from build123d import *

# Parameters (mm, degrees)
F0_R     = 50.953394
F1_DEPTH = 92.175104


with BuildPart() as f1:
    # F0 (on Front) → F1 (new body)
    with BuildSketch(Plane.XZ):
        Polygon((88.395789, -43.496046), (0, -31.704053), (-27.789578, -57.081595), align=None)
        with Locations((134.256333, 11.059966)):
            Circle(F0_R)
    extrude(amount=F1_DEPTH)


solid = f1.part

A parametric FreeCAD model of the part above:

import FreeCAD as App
import Part
import Sketcher
from FreeCAD import Vector

doc = App.newDocument("Part")
body = doc.addObject("PartDesign::Body", "Body")
body.AllowCompound = True

# Sketch on XZ plane
sketch1 = body.newObject("Sketcher::SketchObject", "Sketch")
sketch1.AttachmentSupport = (doc.getObject("XZ_Plane"), [""])
sketch1.MapMode = "FlatFace"
sketch1.addGeometry(Part.LineSegment(Vector(88.395789, -43.496046, 0), Vector(0, -31.704053, 0)), False)
sketch1.addGeometry(Part.LineSegment(Vector(0, -31.704053, 0), Vector(-27.789578, -57.081595, 0)), False)
sketch1.addGeometry(Part.LineSegment(Vector(-27.789578, -57.081595, 0), Vector(88.395789, -43.496046, 0)), False)
sketch1.addGeometry(Part.Circle(Vector(134.256333, 11.059966, 0), Vector(0, 0, 1), 50.953394), False)
sketch1.addConstraint(Sketcher.Constraint("Coincident", 0, 2, 1, 1))
sketch1.addConstraint(Sketcher.Constraint("Coincident", 1, 2, 2, 1))
sketch1.addConstraint(Sketcher.Constraint("Coincident", 2, 2, 0, 1))
sketch1.addConstraint(Sketcher.Constraint("PointOnObject", 0, 2, -2))
sketch1.addConstraint(Sketcher.Constraint("Diameter", 3, 101.906788))
sketch1.addConstraint(Sketcher.Constraint("Distance", 1, 37.633499))
sketch1.addConstraint(Sketcher.Constraint("Distance", 2, 116.976949))
sketch1.addConstraint(Sketcher.Constraint("DistanceX", -1, 1, 2, 2, 88.395789))
sketch1.addConstraint(Sketcher.Constraint("DistanceY", 0, 2, 3, 3, 42.764019))
sketch1.addConstraint(Sketcher.Constraint("DistanceX", 1, 2, 3, 3, 162.045911))
sketch1.addConstraint(Sketcher.Constraint("DistanceY", 1, 2, 3, 3, 68.141561))
sketch1.addConstraint(Sketcher.Constraint("DistanceY", -1, 1, 3, 3, 11.059966))
pad1 = body.newObject("PartDesign::Pad", "Pad")
pad1.Profile = sketch1
pad1.Length = 92.175104

doc.recompute()
